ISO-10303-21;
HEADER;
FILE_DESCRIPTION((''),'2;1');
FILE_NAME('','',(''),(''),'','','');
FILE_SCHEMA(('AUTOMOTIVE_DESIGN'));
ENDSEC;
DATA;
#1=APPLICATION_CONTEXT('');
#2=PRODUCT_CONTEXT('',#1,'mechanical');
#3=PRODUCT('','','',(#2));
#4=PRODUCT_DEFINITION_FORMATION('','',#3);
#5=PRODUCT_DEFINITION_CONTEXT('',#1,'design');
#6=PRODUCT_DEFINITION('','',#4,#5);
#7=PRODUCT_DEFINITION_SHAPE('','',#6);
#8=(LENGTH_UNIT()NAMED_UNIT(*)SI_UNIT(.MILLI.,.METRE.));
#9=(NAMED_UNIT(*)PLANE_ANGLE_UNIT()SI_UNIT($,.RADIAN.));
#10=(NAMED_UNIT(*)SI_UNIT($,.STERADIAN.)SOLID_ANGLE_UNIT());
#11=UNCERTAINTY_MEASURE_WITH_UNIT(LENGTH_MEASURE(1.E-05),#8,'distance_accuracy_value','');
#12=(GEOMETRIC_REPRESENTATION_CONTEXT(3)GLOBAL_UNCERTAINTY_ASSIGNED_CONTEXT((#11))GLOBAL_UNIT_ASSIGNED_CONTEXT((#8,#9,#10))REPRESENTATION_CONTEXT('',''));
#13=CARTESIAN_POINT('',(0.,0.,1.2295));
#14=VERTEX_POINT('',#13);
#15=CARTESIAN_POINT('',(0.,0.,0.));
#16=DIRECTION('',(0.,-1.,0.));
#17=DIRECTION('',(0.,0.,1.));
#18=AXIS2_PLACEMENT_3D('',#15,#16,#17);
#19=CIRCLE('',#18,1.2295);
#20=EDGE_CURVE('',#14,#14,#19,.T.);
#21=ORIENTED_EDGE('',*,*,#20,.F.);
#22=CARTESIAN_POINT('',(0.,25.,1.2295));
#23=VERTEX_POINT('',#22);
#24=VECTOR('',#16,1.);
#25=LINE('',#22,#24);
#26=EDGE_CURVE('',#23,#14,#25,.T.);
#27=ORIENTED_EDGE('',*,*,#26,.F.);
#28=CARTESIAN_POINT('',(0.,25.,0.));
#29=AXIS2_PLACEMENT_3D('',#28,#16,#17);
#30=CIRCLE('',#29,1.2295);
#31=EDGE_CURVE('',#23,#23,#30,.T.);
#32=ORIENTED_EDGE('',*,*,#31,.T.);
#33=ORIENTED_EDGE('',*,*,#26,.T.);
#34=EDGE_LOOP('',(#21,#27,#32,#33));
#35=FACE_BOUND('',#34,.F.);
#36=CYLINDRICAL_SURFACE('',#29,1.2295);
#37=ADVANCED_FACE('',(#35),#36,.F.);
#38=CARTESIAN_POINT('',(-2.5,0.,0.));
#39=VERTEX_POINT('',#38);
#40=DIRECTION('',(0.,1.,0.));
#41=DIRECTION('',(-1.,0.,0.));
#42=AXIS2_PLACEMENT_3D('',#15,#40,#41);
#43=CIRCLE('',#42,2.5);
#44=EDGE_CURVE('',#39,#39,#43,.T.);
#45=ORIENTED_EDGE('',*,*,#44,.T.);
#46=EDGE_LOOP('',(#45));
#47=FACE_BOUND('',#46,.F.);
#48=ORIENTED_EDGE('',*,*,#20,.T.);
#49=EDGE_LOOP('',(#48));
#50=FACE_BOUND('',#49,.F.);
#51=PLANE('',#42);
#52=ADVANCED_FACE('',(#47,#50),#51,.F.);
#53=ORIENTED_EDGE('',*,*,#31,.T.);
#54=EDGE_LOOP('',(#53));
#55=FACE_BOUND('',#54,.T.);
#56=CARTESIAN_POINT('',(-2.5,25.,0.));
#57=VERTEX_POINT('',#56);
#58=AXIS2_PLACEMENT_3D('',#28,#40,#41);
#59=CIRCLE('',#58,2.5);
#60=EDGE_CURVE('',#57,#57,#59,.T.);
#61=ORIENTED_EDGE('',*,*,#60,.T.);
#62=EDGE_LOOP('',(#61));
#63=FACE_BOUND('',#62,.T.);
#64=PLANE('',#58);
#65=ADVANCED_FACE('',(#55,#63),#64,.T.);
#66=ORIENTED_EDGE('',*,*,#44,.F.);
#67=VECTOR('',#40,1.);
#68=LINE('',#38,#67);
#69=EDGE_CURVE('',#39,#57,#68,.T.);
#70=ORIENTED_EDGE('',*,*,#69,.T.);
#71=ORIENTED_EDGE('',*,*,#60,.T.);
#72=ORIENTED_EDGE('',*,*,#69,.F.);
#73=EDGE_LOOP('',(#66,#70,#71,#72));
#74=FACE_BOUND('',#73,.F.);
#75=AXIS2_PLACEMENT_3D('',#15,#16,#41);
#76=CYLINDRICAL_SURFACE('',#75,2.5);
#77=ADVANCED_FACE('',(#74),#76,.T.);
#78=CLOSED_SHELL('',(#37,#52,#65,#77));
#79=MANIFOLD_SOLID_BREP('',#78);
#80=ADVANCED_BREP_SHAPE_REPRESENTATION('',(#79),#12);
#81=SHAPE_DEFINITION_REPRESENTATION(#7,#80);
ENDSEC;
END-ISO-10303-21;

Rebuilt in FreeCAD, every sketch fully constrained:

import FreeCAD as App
import Part
import Sketcher

V = App.Vector

doc = App.newDocument("Part")
body = doc.addObject("PartDesign::Body", "Body")

sketch1 = doc.addObject("Sketcher::SketchObject", "Sketch")
body.addObject(sketch1)
sketch1.AttachmentSupport = (doc.XZ_Plane, [""])
sketch1.MapMode = "FlatFace"
sketch1.addGeometry(Part.Circle(V(0, 0, 0), V(0, 0, 1), 2.5), False)
sketch1.addConstraint([
    Sketcher.Constraint("Coincident", 0, 3, -1, 1),
    Sketcher.Constraint("Diameter", 0, 5.0),
])
pad1 = doc.addObject("PartDesign::Pad", "Pad")
body.addObject(pad1)
pad1.Profile = sketch1
pad1.Length = 25
pad1.Reversed = True

sketch2 = doc.addObject("Sketcher::SketchObject", "Sketch001")
body.addObject(sketch2)
sketch2.AttachmentSupport = (doc.XZ_Plane, [""])
sketch2.MapMode = "FlatFace"
sketch2.AttachmentOffset = App.Placement(V(0, 0, -25), App.Rotation())
sketch2.addGeometry(Part.Circle(V(0, 0, 0), V(0, 0, 1), 1.2), False)
sketch2.addConstraint([
    Sketcher.Constraint("Coincident", 0, 3, -1, 1),
    Sketcher.Constraint("Diameter", 0, 2.459),
])
doc.recompute()
hole = doc.addObject("PartDesign::Hole", "Hole")
body.addObject(hole)
hole.Profile = sketch2
hole.ThreadType = "None"
hole.Diameter = 2.459
hole.DepthType = "ThroughAll"
hole.Reversed = True

doc.recompute()
